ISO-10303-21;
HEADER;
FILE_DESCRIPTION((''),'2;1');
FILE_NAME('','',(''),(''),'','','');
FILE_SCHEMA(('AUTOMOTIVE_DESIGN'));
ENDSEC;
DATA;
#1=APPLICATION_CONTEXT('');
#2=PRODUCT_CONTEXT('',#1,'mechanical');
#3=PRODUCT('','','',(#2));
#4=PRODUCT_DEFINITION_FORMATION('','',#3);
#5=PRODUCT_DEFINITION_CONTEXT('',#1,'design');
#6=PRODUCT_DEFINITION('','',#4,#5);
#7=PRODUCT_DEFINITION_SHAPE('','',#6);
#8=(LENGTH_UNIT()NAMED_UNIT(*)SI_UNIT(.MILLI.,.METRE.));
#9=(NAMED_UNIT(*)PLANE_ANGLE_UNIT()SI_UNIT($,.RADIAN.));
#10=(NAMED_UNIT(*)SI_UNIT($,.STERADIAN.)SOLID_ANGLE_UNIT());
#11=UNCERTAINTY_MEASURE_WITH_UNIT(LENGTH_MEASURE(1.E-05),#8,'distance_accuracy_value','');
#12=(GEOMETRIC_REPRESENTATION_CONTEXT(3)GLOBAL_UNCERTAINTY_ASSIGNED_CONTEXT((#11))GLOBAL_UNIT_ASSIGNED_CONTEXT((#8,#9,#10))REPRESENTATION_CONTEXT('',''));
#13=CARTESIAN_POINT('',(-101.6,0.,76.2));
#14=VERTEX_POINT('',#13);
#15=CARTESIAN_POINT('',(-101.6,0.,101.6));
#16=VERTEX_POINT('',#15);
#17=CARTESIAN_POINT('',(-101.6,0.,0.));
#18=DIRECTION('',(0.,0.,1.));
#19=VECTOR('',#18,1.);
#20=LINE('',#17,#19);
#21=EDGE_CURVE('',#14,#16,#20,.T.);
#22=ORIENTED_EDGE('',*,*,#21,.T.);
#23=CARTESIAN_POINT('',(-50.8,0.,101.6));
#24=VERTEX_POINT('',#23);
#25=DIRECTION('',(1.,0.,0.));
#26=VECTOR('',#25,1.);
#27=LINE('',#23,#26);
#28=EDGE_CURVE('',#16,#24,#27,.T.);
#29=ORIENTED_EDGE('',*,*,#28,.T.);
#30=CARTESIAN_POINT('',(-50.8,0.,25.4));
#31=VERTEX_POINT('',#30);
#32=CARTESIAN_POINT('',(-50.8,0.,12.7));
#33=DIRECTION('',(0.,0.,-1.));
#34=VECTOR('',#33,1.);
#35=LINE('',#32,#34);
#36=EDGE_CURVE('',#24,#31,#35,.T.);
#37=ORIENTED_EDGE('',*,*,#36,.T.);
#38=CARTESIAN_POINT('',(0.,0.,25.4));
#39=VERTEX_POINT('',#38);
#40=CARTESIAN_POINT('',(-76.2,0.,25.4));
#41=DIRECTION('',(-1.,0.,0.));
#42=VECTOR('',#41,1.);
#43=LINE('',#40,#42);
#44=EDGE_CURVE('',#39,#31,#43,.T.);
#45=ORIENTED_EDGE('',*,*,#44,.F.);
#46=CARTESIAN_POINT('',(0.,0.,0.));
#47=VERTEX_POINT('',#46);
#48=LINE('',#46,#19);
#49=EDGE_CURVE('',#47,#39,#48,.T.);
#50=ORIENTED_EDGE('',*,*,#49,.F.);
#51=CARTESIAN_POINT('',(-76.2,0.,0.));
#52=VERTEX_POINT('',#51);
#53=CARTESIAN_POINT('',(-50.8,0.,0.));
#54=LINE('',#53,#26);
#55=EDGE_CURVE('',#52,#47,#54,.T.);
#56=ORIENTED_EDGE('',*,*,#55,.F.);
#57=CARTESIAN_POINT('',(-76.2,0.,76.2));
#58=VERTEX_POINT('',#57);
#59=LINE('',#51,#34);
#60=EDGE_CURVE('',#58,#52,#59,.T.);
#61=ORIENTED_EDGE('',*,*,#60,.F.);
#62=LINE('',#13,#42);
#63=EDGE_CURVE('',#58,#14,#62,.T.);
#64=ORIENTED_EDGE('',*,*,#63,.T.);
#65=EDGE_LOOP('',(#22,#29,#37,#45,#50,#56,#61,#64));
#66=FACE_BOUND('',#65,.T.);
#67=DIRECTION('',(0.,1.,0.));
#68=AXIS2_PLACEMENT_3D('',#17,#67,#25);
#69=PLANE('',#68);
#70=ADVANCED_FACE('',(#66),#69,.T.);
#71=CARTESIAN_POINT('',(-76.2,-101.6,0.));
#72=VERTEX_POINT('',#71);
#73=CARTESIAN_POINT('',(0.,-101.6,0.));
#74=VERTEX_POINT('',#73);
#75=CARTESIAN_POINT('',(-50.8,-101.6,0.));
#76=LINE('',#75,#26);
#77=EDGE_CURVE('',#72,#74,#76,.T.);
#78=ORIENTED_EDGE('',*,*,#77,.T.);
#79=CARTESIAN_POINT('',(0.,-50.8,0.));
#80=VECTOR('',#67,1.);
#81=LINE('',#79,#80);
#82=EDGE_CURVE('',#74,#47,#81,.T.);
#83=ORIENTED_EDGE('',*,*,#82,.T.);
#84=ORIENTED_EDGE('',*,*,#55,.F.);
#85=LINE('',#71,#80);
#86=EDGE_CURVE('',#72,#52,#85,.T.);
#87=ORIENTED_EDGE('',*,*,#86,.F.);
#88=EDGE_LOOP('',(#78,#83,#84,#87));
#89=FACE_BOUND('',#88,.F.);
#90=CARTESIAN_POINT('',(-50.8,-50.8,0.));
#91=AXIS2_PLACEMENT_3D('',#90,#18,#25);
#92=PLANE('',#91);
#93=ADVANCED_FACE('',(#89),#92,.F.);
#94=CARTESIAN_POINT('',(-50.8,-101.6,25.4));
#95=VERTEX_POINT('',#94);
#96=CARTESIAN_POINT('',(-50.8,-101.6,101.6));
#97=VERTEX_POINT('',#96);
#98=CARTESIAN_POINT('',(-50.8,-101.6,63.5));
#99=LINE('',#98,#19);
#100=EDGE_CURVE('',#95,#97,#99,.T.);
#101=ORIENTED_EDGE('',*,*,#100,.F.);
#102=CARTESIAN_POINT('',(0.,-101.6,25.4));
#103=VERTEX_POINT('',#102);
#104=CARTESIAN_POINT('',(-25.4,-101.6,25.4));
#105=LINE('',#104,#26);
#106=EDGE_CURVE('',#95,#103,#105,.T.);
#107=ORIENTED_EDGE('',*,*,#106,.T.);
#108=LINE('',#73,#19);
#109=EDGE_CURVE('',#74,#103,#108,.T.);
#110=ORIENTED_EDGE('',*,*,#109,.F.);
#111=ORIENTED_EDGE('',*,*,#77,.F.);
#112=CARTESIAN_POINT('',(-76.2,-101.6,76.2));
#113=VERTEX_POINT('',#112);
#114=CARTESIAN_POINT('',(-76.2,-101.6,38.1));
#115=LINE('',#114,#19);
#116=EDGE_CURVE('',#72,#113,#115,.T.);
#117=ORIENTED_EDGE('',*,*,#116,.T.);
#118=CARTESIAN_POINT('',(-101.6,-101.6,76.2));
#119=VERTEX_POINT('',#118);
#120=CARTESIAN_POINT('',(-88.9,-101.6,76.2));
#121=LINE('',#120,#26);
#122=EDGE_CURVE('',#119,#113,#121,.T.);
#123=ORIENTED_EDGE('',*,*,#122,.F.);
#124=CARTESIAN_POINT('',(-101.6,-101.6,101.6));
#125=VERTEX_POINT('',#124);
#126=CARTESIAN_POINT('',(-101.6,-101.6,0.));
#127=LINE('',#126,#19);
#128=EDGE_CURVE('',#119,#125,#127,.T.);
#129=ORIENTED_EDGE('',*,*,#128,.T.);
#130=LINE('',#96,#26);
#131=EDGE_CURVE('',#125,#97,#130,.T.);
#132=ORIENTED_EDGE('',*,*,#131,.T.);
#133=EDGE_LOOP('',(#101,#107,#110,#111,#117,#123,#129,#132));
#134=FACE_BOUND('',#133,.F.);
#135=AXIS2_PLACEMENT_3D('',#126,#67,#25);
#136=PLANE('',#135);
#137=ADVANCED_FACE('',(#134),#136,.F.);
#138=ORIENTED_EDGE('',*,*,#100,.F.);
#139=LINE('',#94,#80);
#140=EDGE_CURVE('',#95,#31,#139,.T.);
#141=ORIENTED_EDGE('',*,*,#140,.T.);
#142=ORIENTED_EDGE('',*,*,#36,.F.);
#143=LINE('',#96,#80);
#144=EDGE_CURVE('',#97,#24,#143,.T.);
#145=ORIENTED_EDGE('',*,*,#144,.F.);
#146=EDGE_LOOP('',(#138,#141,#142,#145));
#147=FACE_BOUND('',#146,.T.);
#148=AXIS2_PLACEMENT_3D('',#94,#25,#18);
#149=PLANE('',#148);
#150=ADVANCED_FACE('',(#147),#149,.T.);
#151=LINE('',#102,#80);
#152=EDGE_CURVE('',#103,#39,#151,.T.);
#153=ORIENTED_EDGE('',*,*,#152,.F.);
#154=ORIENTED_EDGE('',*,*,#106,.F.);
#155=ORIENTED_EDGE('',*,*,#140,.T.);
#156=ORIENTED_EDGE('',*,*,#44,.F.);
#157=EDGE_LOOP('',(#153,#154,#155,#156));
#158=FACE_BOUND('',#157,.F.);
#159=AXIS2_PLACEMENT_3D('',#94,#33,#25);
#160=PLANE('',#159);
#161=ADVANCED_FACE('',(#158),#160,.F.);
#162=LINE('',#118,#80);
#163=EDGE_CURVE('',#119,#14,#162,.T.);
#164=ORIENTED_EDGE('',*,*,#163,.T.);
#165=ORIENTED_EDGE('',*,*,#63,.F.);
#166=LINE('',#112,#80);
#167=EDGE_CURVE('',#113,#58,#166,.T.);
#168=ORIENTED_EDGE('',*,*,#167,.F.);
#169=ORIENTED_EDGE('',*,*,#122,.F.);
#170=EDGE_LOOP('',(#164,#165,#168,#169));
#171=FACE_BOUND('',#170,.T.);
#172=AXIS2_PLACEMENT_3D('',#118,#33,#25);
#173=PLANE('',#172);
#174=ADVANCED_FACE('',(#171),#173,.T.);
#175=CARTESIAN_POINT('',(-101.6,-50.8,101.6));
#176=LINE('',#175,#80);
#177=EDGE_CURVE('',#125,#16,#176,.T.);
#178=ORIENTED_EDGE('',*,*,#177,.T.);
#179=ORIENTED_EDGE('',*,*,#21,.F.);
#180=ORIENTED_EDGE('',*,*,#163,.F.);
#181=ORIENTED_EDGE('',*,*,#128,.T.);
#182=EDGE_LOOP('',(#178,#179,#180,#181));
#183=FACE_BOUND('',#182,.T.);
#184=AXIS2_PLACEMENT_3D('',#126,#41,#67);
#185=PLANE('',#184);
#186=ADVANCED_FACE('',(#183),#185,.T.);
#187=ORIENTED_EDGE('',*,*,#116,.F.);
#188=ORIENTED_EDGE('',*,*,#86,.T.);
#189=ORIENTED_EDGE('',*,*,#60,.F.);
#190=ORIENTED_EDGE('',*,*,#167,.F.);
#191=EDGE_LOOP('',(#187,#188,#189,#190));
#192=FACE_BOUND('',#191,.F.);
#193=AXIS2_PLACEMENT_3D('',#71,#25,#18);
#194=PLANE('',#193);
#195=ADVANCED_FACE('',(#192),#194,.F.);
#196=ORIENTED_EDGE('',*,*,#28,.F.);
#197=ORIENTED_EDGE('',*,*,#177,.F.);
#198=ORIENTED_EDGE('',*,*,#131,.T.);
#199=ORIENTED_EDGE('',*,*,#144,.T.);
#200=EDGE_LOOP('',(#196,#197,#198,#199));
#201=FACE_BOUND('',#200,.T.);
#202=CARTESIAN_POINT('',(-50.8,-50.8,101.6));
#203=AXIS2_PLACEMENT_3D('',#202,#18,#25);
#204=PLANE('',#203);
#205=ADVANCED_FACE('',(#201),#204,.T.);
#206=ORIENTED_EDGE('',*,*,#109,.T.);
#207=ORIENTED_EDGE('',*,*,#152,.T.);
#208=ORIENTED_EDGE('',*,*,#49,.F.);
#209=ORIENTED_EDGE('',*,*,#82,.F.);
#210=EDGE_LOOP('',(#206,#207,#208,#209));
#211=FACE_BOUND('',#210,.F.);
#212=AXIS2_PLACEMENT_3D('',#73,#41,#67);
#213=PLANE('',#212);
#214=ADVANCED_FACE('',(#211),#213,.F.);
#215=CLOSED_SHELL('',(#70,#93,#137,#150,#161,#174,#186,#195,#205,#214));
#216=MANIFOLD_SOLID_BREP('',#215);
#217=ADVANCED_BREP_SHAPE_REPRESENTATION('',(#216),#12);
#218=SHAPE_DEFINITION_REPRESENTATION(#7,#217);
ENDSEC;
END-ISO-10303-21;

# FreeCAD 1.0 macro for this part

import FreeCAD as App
import Part
import Sketcher
Q = App.Units.Quantity


def add_polygon(sketch, points):
    """Adds a closed chain of lines whose ends are joined by coincident constraints."""
    first, n = sketch.GeometryCount, len(points)
    for a, b in zip(points, points[1:] + points[:1]):
        sketch.addGeometry(Part.LineSegment(App.Vector(*a, 0), App.Vector(*b, 0)), False)
    for i in range(n):
        sketch.addConstraint(Sketcher.Constraint("Coincident", first + i, 2, first + (i + 1) % n, 1))

doc = App.newDocument("Part")
body = doc.addObject("PartDesign::Body", "Body")

sketch1 = body.newObject("Sketcher::SketchObject", "Sketch")
sketch1.AttachmentSupport = (doc.getObject("XY_Plane"), [""])
sketch1.MapMode = "FlatFace"
add_polygon(sketch1, [(-102, 0), (-102, -102), (0, -102), (0, 0)])
sketch1.addConstraint([
    Sketcher.Constraint("Vertical", 0),
    Sketcher.Constraint("Horizontal", 1),
    Sketcher.Constraint("Vertical", 2),
    Sketcher.Constraint("Horizontal", 3),
    Sketcher.Constraint("Coincident", 2, 2, -1, 1),
    Sketcher.Constraint("Equal", 3, 0),
    Sketcher.Constraint("DistanceX", 1, 1, 1, 2, Q("4 in")),
])
pad1 = body.newObject("PartDesign::Pad", "Pad")
pad1.Profile = sketch1
pad1.Length = Q("4 in")

sketch2 = body.newObject("Sketcher::SketchObject", "Sketch001")
sketch2.AttachmentSupport = (doc.getObject("XZ_Plane"), [""])
sketch2.MapMode = "FlatFace"
sketch2.AttachmentOffset = App.Placement(App.Vector(0, 0, 4 * 25.4), App.Rotation())
add_polygon(sketch2, [(-102, 76), (-102, 0), (-76, 0), (-76, 76)])
add_polygon(sketch2, [(-51, 102), (-51, 25), (0, 25), (0, 102)])
sketch2.addConstraint([
    Sketcher.Constraint("Vertical", 0),
    Sketcher.Constraint("Horizontal", 1),
    Sketcher.Constraint("Vertical", 2),
    Sketcher.Constraint("Horizontal", 3),
    Sketcher.Constraint("Vertical", 4),
    Sketcher.Constraint("Horizontal", 5),
    Sketcher.Constraint("Vertical", 6),
    Sketcher.Constraint("Horizontal", 7),
    Sketcher.Constraint("PointOnObject", 0, 2, -1),
    Sketcher.Constraint("PointOnObject", 5, 2, -2),
    Sketcher.Constraint("Equal", 2, 4),
    Sketcher.Constraint("DistanceX", 1, 1, 1, 2, Q("1 in")),
    Sketcher.Constraint("DistanceX", 5, 1, 5, 2, Q("2 in")),
    Sketcher.Constraint("DistanceY", 0, 2, 0, 1, Q("3 in")),
    Sketcher.Constraint("DistanceX", 0, 2, -1, 1, Q("4 in")),
    Sketcher.Constraint("DistanceY", -1, 1, 4, 2, Q("1 in")),
])
pocket1 = body.newObject("PartDesign::Pocket", "Pocket")
pocket1.Profile = sketch2
pocket1.Length = Q("5.6 in")

doc.recompute()
